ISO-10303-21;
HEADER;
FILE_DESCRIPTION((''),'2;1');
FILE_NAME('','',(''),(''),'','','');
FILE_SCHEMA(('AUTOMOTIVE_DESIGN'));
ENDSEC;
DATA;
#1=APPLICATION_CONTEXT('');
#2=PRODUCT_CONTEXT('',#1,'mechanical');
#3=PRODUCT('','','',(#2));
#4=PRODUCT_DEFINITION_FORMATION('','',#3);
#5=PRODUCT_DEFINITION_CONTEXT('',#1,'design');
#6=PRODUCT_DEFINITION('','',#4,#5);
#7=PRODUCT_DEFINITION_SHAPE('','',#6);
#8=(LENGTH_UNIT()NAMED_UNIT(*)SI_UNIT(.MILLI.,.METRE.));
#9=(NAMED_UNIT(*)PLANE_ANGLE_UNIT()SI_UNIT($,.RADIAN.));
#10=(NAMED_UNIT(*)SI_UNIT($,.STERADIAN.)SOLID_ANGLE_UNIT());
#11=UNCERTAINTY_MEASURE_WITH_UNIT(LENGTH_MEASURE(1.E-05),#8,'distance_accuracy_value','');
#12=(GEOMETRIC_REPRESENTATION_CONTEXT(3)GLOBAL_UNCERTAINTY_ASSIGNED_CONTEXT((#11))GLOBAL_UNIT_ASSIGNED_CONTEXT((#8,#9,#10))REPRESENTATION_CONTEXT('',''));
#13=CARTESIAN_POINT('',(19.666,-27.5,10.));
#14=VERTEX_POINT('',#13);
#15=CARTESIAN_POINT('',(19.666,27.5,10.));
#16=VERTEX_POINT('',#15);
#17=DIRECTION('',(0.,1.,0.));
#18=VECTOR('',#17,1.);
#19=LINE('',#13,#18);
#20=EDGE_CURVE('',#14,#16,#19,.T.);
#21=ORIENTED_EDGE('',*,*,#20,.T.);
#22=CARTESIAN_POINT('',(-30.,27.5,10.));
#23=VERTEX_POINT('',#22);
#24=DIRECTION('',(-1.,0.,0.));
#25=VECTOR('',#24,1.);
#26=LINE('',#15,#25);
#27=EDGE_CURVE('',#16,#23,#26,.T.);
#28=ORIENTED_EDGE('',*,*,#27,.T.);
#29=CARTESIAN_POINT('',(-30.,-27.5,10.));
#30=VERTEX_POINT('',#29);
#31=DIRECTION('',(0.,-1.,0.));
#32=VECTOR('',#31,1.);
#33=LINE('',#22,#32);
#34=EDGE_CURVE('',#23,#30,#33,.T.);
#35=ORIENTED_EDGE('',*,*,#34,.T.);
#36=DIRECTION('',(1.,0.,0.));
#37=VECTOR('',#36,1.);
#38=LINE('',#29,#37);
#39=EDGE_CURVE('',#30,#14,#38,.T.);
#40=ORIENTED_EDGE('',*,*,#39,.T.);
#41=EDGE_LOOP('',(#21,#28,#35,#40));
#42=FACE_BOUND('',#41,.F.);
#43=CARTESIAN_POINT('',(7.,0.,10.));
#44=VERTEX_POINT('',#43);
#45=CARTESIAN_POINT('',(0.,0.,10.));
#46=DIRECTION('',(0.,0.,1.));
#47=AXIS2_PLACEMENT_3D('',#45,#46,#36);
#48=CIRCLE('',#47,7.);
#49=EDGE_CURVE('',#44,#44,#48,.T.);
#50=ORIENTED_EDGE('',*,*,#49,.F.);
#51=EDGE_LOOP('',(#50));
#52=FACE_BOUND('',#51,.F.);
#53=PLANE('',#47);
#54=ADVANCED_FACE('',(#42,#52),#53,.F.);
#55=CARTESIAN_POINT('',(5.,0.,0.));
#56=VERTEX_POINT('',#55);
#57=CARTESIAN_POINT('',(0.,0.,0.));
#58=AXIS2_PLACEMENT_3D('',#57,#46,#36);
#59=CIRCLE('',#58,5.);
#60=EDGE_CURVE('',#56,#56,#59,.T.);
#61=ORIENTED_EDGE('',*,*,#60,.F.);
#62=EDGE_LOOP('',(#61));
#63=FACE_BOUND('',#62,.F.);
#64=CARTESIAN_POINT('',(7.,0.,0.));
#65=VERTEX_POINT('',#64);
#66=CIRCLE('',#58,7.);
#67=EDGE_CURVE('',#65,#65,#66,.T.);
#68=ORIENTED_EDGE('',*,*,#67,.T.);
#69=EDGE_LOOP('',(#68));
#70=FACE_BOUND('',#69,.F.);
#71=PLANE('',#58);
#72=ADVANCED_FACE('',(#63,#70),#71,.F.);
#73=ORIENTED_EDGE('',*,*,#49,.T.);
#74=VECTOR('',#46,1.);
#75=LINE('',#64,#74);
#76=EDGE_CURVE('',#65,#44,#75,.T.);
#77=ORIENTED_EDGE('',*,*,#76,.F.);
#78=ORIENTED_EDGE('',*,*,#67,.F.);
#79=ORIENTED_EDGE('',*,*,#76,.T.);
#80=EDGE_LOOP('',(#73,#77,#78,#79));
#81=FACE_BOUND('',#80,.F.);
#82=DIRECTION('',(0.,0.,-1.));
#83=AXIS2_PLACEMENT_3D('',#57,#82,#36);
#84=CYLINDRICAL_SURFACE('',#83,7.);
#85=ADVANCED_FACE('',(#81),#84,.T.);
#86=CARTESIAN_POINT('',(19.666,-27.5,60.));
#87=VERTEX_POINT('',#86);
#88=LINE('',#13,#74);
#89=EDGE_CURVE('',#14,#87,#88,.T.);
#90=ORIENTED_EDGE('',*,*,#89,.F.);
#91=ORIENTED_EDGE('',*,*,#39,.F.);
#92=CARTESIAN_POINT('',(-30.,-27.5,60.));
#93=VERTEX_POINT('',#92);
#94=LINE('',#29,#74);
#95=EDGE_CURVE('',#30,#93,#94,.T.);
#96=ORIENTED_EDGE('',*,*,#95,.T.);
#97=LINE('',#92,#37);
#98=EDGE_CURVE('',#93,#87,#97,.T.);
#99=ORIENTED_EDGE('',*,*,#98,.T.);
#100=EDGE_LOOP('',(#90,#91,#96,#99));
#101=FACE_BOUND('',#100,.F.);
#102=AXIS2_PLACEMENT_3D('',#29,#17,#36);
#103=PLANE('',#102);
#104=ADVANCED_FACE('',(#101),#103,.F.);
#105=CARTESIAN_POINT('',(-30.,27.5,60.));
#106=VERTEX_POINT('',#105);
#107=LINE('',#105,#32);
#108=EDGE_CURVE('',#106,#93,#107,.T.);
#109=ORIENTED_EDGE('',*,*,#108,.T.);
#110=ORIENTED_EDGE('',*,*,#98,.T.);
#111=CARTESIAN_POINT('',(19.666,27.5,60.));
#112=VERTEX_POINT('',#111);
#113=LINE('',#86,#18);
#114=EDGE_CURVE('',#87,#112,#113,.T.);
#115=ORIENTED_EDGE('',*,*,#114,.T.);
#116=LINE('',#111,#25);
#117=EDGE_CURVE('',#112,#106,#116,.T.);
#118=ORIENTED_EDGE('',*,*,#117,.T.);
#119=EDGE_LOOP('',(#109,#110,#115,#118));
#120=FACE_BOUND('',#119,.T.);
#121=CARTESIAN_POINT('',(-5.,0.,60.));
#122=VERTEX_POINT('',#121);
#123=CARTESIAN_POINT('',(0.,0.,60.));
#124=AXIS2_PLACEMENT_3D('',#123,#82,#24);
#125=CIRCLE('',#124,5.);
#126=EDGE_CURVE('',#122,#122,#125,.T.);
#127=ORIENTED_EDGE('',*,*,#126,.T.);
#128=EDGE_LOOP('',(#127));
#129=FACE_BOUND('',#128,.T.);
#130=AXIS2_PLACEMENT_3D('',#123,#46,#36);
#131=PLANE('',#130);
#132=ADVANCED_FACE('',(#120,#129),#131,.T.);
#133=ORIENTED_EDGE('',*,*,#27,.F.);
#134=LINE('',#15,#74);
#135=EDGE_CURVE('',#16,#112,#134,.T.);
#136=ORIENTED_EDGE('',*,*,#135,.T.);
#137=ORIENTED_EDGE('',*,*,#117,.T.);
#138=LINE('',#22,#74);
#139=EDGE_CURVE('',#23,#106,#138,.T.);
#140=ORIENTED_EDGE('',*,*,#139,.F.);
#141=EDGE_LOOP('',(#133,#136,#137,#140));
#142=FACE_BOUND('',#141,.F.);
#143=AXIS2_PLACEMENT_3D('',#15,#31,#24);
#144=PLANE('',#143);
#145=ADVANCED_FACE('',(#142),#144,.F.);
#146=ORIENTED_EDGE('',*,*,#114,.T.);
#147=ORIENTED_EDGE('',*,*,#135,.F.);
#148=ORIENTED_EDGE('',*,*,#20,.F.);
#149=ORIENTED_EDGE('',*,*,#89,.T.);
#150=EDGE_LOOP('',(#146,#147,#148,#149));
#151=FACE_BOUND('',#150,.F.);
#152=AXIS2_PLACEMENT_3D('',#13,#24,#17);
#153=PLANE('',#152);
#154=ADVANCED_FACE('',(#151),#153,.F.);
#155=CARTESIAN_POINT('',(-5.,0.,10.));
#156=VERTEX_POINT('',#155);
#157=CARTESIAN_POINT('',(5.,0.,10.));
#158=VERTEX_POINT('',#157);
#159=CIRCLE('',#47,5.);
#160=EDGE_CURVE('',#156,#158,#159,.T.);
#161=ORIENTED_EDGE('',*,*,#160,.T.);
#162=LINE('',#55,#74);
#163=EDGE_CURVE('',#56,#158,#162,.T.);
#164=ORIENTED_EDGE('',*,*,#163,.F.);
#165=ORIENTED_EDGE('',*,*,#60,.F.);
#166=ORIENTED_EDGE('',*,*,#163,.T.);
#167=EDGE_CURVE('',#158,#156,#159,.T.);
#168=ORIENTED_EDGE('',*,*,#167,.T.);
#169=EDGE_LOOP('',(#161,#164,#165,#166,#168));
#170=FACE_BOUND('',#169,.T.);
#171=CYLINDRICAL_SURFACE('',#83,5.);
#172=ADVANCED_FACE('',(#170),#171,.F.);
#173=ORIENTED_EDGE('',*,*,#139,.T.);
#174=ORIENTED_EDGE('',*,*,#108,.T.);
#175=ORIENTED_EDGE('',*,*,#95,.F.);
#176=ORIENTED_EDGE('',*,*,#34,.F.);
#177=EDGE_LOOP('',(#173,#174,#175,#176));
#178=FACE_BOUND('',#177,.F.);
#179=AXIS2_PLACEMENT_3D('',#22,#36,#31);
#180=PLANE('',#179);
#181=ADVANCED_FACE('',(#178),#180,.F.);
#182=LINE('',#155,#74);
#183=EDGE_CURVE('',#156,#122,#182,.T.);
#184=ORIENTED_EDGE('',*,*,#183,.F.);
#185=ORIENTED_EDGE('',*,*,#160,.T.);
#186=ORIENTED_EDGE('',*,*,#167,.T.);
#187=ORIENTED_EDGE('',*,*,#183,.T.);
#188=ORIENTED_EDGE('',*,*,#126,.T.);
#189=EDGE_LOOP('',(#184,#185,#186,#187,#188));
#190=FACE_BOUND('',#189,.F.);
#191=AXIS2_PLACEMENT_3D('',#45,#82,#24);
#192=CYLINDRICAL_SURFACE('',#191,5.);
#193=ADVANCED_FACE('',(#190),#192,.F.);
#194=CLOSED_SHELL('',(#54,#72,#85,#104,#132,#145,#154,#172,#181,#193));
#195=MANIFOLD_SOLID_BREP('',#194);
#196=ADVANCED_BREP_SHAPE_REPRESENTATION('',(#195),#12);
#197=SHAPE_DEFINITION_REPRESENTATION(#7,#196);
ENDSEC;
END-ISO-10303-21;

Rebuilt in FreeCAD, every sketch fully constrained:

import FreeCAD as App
import Part
import Sketcher

doc = App.newDocument("Part")
body = doc.addObject("PartDesign::Body", "Body")

# Sketch on XY plane
sketch1 = body.newObject("Sketcher::SketchObject", "Sketch")
sketch1.AttachmentSupport = (doc.getObject("XY_Plane"), [""])
sketch1.MapMode = "FlatFace"
sketch1.addGeometry([
    Part.Circle(App.Vector(0, 0, 0), App.Vector(0, 0, 1), 7),
    Part.Circle(App.Vector(0, 0, 0), App.Vector(0, 0, 1), 5),
], False)
sketch1.addConstraint([
    Sketcher.Constraint("Coincident", 0, 3, -1, 1),
    Sketcher.Constraint("Coincident", 1, 3, -1, 1),
    Sketcher.Constraint("Diameter", 0, 14.0),
    Sketcher.Constraint("Diameter", 1, 10.0),
])
pad1 = body.newObject("PartDesign::Pad", "Pad")
pad1.Profile = sketch1
pad1.Length = 10

# Sketch on XY plane
sketch2 = body.newObject("Sketcher::SketchObject", "Sketch001")
sketch2.AttachmentSupport = (doc.getObject("XY_Plane"), [""])
sketch2.MapMode = "FlatFace"
sketch2.AttachmentOffset = App.Placement(App.Vector(0, 0, 10), App.Rotation())
sketch2.addGeometry([
    Part.LineSegment(App.Vector(-30, 27.5, 0), App.Vector(-30, -27.5, 0)),
    Part.LineSegment(App.Vector(-30, -27.5, 0), App.Vector(19.666, -27.5, 0)),
    Part.LineSegment(App.Vector(19.666, -27.5, 0), App.Vector(19.666, 27.5, 0)),
    Part.LineSegment(App.Vector(19.666, 27.5, 0), App.Vector(-30, 27.5, 0)),
], False)
sketch2.addConstraint([
    Sketcher.Constraint("Coincident", 0, 2, 1, 1),
    Sketcher.Constraint("Coincident", 1, 2, 2, 1),
    Sketcher.Constraint("Coincident", 2, 2, 3, 1),
    Sketcher.Constraint("Coincident", 3, 2, 0, 1),
    Sketcher.Constraint("Vertical", 0),
    Sketcher.Constraint("Horizontal", 1),
    Sketcher.Constraint("Vertical", 2),
    Sketcher.Constraint("Horizontal", 3),
    Sketcher.Constraint("DistanceY", 0, 2, 0, 1, 55.0),
    Sketcher.Constraint("DistanceX", 0, 2, -1, 1, 30.0),
    Sketcher.Constraint("DistanceX", -1, 1, 1, 2, 19.666),
    Sketcher.Constraint("DistanceY", 0, 2, -1, 1, 27.5),
])
pad2 = body.newObject("PartDesign::Pad", "Pad001")
pad2.Profile = sketch2
pad2.Length = 50

# Sketch on XY plane
sketch3 = body.newObject("Sketcher::SketchObject", "Sketch002")
sketch3.AttachmentSupport = (doc.getObject("XY_Plane"), [""])
sketch3.MapMode = "FlatFace"
sketch3.AttachmentOffset = App.Placement(App.Vector(0, 0, 10), App.Rotation())
sketch3.addGeometry(Part.Circle(App.Vector(0, 0, 0), App.Vector(0, 0, 1), 5), False)
sketch3.addConstraint([
    Sketcher.Constraint("Coincident", 0, 3, -1, 1),
    Sketcher.Constraint("Diameter", 0, 10.0),
])
pocket1 = body.newObject("PartDesign::Pocket", "Pocket")
pocket1.Profile = sketch3
pocket1.Length = 50
pocket1.Reversed = True

doc.recompute()
